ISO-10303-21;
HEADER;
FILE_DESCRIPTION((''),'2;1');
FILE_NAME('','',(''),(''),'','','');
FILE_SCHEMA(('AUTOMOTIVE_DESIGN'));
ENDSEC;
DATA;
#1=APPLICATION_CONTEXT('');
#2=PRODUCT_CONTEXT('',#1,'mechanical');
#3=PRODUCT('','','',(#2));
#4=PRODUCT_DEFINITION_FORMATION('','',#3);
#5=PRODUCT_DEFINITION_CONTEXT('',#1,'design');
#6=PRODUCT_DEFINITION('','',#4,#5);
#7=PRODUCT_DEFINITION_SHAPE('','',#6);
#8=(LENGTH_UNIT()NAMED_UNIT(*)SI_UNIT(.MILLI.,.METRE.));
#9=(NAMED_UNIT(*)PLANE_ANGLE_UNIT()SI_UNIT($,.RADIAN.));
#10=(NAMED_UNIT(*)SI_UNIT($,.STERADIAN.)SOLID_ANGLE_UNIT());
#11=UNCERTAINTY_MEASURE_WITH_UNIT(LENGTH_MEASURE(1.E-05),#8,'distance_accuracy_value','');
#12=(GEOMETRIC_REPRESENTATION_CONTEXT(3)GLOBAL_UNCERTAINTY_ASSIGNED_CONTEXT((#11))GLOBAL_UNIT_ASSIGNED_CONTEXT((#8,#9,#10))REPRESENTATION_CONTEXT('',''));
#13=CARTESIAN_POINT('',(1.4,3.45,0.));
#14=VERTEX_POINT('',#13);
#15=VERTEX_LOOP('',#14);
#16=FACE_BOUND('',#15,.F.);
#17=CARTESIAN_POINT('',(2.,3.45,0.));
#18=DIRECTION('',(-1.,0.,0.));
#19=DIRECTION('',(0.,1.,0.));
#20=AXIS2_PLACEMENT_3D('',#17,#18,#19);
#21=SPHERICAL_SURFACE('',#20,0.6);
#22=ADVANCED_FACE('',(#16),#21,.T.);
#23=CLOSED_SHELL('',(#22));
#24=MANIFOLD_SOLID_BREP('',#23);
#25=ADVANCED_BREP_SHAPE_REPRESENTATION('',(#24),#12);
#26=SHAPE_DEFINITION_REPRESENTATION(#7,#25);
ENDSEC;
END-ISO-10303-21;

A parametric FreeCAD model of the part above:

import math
import FreeCAD as App
import Part
import Sketcher
from FreeCAD import Vector

doc = App.newDocument("Part")
body = doc.addObject("PartDesign::Body", "Body")

sketch1 = body.newObject("Sketcher::SketchObject", "Sketch")
sketch1.AttachmentSupport = (doc.getObject("XY_Plane"), [""])
sketch1.MapMode = "FlatFace"
sketch1.addGeometry([
    Part.LineSegment(Vector(1.4, 3.5, 0), Vector(2.6, 3.5, 0)),
    Part.ArcOfCircle(Part.Circle(Vector(2, 3.5, 0), Vector(0, 0, 1), 0.6), math.radians(0), math.radians(180)),
], False)
sketch1.addGeometry(Part.LineSegment(Vector(1.4, 3.5, 0), Vector(2.6, 3.5, 0)), True)
sketch1.addConstraint([
    Sketcher.Constraint("Coincident", 0, 1, 1, 2),
    Sketcher.Constraint("Coincident", 1, 1, 0, 2),
    Sketcher.Constraint("Horizontal", 0),
    Sketcher.Constraint("Horizontal", 2),
    Sketcher.Constraint("Coincident", 2, 1, 0, 1),
    Sketcher.Constraint("Horizontal", 1, 3, 0, 1),
    Sketcher.Constraint("Equal", 0, 2),
    Sketcher.Constraint("Radius", 1, 0.6),
    Sketcher.Constraint("DistanceX", -1, 1, 1, 3, 2.0),
    Sketcher.Constraint("DistanceY", -1, 1, 1, 3, 3.45),
])
revolution = body.newObject("PartDesign::Revolution", "Revolution")
revolution.Profile = sketch1
revolution.ReferenceAxis = (sketch1, ["Axis0"])
revolution.Angle = 360

doc.recompute()
